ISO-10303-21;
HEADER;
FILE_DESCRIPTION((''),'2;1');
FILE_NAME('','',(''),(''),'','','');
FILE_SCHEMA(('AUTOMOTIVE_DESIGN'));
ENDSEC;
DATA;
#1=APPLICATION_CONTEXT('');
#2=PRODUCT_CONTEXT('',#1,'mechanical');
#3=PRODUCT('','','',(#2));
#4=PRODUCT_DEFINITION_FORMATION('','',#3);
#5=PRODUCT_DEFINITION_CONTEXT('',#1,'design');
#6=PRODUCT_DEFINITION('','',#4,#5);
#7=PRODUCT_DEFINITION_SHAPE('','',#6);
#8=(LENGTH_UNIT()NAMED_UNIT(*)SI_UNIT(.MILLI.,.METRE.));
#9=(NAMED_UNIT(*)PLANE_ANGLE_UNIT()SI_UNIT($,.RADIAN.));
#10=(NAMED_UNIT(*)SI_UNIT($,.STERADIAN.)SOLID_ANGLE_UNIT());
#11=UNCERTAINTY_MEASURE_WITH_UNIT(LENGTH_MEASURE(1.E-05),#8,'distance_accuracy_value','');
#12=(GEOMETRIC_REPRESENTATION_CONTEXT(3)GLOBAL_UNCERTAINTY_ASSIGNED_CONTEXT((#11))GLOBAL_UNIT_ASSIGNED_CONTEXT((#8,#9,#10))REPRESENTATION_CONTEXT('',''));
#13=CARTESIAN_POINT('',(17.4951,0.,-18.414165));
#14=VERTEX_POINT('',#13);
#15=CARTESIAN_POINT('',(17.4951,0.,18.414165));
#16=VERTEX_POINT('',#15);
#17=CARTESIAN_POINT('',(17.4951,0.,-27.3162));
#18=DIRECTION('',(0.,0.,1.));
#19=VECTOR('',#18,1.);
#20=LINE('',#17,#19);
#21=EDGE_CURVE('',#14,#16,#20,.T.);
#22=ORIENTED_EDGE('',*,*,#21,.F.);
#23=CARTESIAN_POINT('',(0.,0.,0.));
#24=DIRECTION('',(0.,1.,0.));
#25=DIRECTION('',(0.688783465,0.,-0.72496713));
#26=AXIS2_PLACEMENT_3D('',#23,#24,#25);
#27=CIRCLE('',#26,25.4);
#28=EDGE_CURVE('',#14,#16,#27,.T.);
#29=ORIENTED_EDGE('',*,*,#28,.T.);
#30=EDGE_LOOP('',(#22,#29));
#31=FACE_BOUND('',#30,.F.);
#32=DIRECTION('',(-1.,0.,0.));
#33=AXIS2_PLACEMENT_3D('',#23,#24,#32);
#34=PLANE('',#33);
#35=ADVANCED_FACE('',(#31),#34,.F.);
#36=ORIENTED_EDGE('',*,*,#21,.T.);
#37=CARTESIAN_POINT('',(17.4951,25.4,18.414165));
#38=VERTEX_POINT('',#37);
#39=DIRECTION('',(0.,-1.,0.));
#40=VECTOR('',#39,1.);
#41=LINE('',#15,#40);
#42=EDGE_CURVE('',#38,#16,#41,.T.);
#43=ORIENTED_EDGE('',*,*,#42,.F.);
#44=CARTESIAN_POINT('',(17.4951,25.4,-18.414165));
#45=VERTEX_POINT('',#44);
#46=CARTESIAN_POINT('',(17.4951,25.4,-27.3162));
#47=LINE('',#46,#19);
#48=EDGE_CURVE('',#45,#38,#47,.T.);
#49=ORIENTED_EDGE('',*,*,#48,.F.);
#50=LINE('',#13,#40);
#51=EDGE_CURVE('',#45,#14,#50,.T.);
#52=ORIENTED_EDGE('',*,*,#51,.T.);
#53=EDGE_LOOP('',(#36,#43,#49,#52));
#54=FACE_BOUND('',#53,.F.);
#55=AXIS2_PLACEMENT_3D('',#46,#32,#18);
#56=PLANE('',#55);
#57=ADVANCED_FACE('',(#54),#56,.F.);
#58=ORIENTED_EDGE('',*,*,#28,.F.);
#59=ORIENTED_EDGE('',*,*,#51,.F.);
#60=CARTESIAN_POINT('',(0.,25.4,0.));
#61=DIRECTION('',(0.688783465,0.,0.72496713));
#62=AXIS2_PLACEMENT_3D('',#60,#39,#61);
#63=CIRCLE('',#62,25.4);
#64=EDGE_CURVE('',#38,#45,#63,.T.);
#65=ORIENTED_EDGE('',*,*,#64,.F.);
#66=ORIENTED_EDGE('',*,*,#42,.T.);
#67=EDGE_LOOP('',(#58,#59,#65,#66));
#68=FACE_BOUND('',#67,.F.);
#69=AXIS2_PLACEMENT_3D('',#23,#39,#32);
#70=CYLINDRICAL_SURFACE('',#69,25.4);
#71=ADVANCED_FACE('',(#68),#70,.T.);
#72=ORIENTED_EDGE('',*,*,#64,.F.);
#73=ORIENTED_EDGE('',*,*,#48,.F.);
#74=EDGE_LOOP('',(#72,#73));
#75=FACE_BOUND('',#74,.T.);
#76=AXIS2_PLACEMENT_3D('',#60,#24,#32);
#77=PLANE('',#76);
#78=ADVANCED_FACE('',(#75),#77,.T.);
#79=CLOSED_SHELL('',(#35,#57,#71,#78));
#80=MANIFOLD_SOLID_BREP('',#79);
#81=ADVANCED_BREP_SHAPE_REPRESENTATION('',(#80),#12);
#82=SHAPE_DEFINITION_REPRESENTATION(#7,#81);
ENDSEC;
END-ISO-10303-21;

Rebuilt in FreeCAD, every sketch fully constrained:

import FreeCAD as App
import Part
import Sketcher

V = App.Vector
Q = App.Units.Quantity


def add_polygon(sketch, points):
    """Adds a closed chain of lines whose ends are joined by coincident constraints."""
    first, n = sketch.GeometryCount, len(points)
    for a, b in zip(points, points[1:] + points[:1]):
        sketch.addGeometry(Part.LineSegment(App.Vector(*a, 0), App.Vector(*b, 0)), False)
    for i in range(n):
        sketch.addConstraint(Sketcher.Constraint("Coincident", first + i, 2, first + (i + 1) % n, 1))

doc = App.newDocument("Part")
params = doc.addObject("Spreadsheet::Sheet", "Params")
for row, (alias, value) in enumerate([
    ("sketch1_diameter", "2 in"),
    ("pad1_length", "1 in"),
    ("pocket1_length", "1 in"),
], start=1):
    params.set(f"A{row}", alias)
    params.set(f"B{row}", "=" + value)
    params.setAlias(f"B{row}", alias)

body = doc.addObject("PartDesign::Body", "Body")

# Sketch on XZ plane
sketch1 = body.newObject("Sketcher::SketchObject", "Sketch")
sketch1.AttachmentSupport = (doc.getObject("XZ_Plane"), [""])
sketch1.MapMode = "FlatFace"
sketch1.addGeometry(Part.Circle(V(0, 0, 0), V(0, 0, 1), 25.4), False)
sketch1.addConstraint(Sketcher.Constraint("Coincident", 0, 3, -1, 1))
sketch1.addConstraint(Sketcher.Constraint("Diameter", 0, Q("2 in")))
sketch1.setExpression("Constraints[1]", "Params.sketch1_diameter")
pad1 = body.newObject("PartDesign::Pad", "Pad")
pad1.Profile = sketch1
pad1.setExpression("Length", "Params.pad1_length")
pad1.Reversed = True

# Sketch on XZ plane
sketch2 = body.newObject("Sketcher::SketchObject", "Sketch001")
sketch2.AttachmentSupport = (doc.getObject("XZ_Plane"), [""])
sketch2.MapMode = "FlatFace"
sketch2.AttachmentOffset = App.Placement(V(0, 0, -1 * 25.4), App.Rotation())
add_polygon(sketch2, [(17.4951, -27.3162), (17.4951, 22.4742), (30.1026, 22.4742), (30.1026, -27.3162)])  # lines 0-3
sketch2.addConstraint(Sketcher.Constraint("Vertical", 0))
sketch2.addConstraint(Sketcher.Constraint("Horizontal", 1))
sketch2.addConstraint(Sketcher.Constraint("Vertical", 2))
sketch2.addConstraint(Sketcher.Constraint("Horizontal", 3))
sketch2.addConstraint(Sketcher.Constraint("DistanceX", 1, 1, 1, 2, 12.6075))
sketch2.addConstraint(Sketcher.Constraint("DistanceY", 0, 1, 0, 2, 49.7904))
sketch2.addConstraint(Sketcher.Constraint("DistanceY", -1, 1, 0, 2, Q("0.8848 in")))
sketch2.addConstraint(Sketcher.Constraint("DistanceX", -1, 1, 0, 2, 17.495))
pocket1 = body.newObject("PartDesign::Pocket", "Pocket")
pocket1.Profile = sketch2
pocket1.setExpression("Length", "Params.pocket1_length")
pocket1.Reversed = True

doc.recompute()
